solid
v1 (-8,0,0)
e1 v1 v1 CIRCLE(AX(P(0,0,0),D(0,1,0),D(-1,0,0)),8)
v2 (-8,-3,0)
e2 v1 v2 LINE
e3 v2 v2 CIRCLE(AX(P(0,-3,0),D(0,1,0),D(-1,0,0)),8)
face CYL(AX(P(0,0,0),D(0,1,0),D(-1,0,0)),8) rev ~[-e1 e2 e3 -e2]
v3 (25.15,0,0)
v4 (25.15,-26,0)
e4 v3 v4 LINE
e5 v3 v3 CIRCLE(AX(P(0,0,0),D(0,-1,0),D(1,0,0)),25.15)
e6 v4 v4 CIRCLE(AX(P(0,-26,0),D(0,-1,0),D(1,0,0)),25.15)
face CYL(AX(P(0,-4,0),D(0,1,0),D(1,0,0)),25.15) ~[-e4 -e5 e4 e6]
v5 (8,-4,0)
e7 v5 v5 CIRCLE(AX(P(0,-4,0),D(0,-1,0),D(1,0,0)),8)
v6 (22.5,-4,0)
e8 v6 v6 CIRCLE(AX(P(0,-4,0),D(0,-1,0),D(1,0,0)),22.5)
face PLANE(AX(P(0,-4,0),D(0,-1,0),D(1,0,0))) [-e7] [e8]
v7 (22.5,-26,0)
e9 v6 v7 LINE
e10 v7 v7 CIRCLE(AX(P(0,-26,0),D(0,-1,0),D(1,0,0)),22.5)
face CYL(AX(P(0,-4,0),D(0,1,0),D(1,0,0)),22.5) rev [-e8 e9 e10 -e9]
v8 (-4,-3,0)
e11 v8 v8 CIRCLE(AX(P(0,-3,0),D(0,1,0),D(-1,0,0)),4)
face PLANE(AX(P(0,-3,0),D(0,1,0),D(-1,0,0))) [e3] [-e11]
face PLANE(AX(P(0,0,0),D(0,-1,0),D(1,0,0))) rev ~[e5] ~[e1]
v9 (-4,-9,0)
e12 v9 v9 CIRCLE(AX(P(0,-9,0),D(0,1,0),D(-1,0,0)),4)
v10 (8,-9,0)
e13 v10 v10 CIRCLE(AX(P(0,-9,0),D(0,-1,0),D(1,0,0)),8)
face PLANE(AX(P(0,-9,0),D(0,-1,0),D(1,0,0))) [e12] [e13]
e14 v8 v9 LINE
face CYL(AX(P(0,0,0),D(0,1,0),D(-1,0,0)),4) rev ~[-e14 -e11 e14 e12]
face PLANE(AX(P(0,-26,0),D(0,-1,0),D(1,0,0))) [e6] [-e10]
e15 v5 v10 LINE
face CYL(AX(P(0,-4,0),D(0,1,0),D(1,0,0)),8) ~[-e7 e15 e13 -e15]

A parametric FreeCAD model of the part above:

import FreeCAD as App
import Part
import Sketcher

V = App.Vector

doc = App.newDocument("Part")
body = doc.addObject("PartDesign::Body", "Body")

sketch1 = doc.addObject("Sketcher::SketchObject", "Sketch")
body.addObject(sketch1)
sketch1.AttachmentSupport = (doc.XZ_Plane, [""])
sketch1.MapMode = "FlatFace"
sketch1.addGeometry(Part.Circle(V(0, 0, 0), V(0, 0, 1), 25), False)
sketch1.addConstraint(Sketcher.Constraint("Coincident", 0, 3, -1, 1))
sketch1.addConstraint(Sketcher.Constraint("Diameter", 0, 50.3))
pad1 = doc.addObject("PartDesign::Pad", "Pad")
body.addObject(pad1)
pad1.Profile = sketch1
pad1.Length = 4

sketch2 = doc.addObject("Sketcher::SketchObject", "Sketch001")
body.addObject(sketch2)
sketch2.AttachmentSupport = (doc.XZ_Plane, [""])
sketch2.MapMode = "FlatFace"
sketch2.AttachmentOffset = App.Placement(V(0, 0, 4), App.Rotation())
sketch2.addGeometry(Part.Circle(V(0, 0, 0), V(0, 0, 1), 25), False)
sketch2.addGeometry(Part.Circle(V(0, 0, 0), V(0, 0, 1), 22), False)
sketch2.addConstraint(Sketcher.Constraint("Coincident", 0, 3, -1, 1))
sketch2.addConstraint(Sketcher.Constraint("Coincident", 1, 3, -1, 1))
sketch2.addConstraint(Sketcher.Constraint("Diameter", 1, 45.0))
sketch2.addConstraint(Sketcher.Constraint("Diameter", 0, 50.3))
pad2 = doc.addObject("PartDesign::Pad", "Pad001")
body.addObject(pad2)
pad2.Profile = sketch2
pad2.Length = 22

sketch3 = doc.addObject("Sketcher::SketchObject", "Sketch002")
body.addObject(sketch3)
sketch3.AttachmentSupport = (doc.XZ_Plane, [""])
sketch3.MapMode = "FlatFace"
sketch3.AttachmentOffset = App.Placement(V(0, 0, 4), App.Rotation())
sketch3.addGeometry(Part.Circle(V(0, 0, 0), V(0, 0, 1), 8), False)
sketch3.addConstraint(Sketcher.Constraint("Coincident", 0, 3, -1, 1))
sketch3.addConstraint(Sketcher.Constraint("Diameter", 0, 16.0))
pad3 = doc.addObject("PartDesign::Pad", "Pad002")
body.addObject(pad3)
pad3.Profile = sketch3
pad3.Length = 5

sketch4 = doc.addObject("Sketcher::SketchObject", "Sketch003")
body.addObject(sketch4)
sketch4.AttachmentSupport = (doc.XZ_Plane, [""])
sketch4.MapMode = "FlatFace"
sketch4.addGeometry(Part.Circle(V(0, 0, 0), V(0, 0, 1), 4), False)
sketch4.addConstraint(Sketcher.Constraint("Coincident", 0, 3, -1, 1))
sketch4.addConstraint(Sketcher.Constraint("Diameter", 0, 8.0))
pocket1 = doc.addObject("PartDesign::Pocket", "Pocket")
body.addObject(pocket1)
pocket1.Profile = sketch4
pocket1.Length = 25
pocket1.Reversed = True

sketch5 = doc.addObject("Sketcher::SketchObject", "Sketch004")
body.addObject(sketch5)
sketch5.AttachmentSupport = (doc.XZ_Plane, [""])
sketch5.MapMode = "FlatFace"
sketch5.addGeometry(Part.Circle(V(0, 0, 0), V(0, 0, 1), 8), False)
sketch5.addConstraint(Sketcher.Constraint("Coincident", 0, 3, -1, 1))
sketch5.addConstraint(Sketcher.Constraint("Diameter", 0, 16.0))
pocket2 = doc.addObject("PartDesign::Pocket", "Pocket001")
body.addObject(pocket2)
pocket2.Profile = sketch5
pocket2.Length = 3
pocket2.Reversed = True

doc.recompute()
